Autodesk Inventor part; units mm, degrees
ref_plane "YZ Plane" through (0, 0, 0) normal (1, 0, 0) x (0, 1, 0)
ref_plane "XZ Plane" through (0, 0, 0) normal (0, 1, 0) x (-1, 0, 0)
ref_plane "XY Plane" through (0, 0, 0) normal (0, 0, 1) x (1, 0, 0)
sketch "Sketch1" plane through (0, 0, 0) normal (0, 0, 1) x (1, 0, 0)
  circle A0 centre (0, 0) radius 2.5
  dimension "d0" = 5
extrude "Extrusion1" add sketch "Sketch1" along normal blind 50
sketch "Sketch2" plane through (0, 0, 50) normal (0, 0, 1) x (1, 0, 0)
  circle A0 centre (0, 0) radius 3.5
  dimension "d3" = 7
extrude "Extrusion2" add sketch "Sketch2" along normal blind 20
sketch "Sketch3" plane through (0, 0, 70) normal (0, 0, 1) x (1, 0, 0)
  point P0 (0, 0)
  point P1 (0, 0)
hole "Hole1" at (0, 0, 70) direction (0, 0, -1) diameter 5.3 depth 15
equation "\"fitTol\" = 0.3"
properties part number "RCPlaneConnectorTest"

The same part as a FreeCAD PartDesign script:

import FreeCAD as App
import Part
import Sketcher
from FreeCAD import Vector

doc = App.newDocument("Part")
body = doc.addObject("PartDesign::Body", "Body")

sketch1 = body.newObject("Sketcher::SketchObject", "Sketch")
sketch1.AttachmentSupport = (doc.getObject("XY_Plane"), [""])
sketch1.MapMode = "FlatFace"
sketch1.addGeometry(Part.Circle(Vector(0, 0, 0), Vector(0, 0, 1), 2.5), False)
sketch1.addConstraint(Sketcher.Constraint("Coincident", 0, 3, -1, 1))
sketch1.addConstraint(Sketcher.Constraint("Diameter", 0, 5.0))
pad1 = body.newObject("PartDesign::Pad", "Pad")
pad1.Profile = sketch1
pad1.Length = 50

sketch2 = body.newObject("Sketcher::SketchObject", "Sketch001")
sketch2.AttachmentSupport = (doc.getObject("XY_Plane"), [""])
sketch2.MapMode = "FlatFace"
sketch2.AttachmentOffset = App.Placement(Vector(0, 0, 50), App.Rotation())
sketch2.addGeometry(Part.Circle(Vector(0, 0, 0), Vector(0, 0, 1), 3.5), False)
sketch2.addConstraint(Sketcher.Constraint("Coincident", 0, 3, -1, 1))
sketch2.addConstraint(Sketcher.Constraint("Diameter", 0, 7.0))
pad2 = body.newObject("PartDesign::Pad", "Pad001")
pad2.Profile = sketch2
pad2.Length = 20

sketch3 = body.newObject("Sketcher::SketchObject", "Sketch002")
sketch3.AttachmentSupport = (doc.getObject("XY_Plane"), [""])
sketch3.MapMode = "FlatFace"
sketch3.AttachmentOffset = App.Placement(Vector(0, 0, 70), App.Rotation())
sketch3.addGeometry(Part.Circle(Vector(0, 0, 0), Vector(0, 0, 1), 2.65), False)
sketch3.addConstraint(Sketcher.Constraint("Coincident", 0, 3, -1, 1))
sketch3.addConstraint(Sketcher.Constraint("Diameter", 0, 5.3))
doc.recompute()
hole = body.newObject("PartDesign::Hole", "Hole")
hole.Profile = sketch3
hole.ThreadType = "None"
hole.Diameter = 5.3
hole.DepthType = "Dimension"
hole.Depth = 15
hole.DrillPoint = "Flat"

doc.recompute()
